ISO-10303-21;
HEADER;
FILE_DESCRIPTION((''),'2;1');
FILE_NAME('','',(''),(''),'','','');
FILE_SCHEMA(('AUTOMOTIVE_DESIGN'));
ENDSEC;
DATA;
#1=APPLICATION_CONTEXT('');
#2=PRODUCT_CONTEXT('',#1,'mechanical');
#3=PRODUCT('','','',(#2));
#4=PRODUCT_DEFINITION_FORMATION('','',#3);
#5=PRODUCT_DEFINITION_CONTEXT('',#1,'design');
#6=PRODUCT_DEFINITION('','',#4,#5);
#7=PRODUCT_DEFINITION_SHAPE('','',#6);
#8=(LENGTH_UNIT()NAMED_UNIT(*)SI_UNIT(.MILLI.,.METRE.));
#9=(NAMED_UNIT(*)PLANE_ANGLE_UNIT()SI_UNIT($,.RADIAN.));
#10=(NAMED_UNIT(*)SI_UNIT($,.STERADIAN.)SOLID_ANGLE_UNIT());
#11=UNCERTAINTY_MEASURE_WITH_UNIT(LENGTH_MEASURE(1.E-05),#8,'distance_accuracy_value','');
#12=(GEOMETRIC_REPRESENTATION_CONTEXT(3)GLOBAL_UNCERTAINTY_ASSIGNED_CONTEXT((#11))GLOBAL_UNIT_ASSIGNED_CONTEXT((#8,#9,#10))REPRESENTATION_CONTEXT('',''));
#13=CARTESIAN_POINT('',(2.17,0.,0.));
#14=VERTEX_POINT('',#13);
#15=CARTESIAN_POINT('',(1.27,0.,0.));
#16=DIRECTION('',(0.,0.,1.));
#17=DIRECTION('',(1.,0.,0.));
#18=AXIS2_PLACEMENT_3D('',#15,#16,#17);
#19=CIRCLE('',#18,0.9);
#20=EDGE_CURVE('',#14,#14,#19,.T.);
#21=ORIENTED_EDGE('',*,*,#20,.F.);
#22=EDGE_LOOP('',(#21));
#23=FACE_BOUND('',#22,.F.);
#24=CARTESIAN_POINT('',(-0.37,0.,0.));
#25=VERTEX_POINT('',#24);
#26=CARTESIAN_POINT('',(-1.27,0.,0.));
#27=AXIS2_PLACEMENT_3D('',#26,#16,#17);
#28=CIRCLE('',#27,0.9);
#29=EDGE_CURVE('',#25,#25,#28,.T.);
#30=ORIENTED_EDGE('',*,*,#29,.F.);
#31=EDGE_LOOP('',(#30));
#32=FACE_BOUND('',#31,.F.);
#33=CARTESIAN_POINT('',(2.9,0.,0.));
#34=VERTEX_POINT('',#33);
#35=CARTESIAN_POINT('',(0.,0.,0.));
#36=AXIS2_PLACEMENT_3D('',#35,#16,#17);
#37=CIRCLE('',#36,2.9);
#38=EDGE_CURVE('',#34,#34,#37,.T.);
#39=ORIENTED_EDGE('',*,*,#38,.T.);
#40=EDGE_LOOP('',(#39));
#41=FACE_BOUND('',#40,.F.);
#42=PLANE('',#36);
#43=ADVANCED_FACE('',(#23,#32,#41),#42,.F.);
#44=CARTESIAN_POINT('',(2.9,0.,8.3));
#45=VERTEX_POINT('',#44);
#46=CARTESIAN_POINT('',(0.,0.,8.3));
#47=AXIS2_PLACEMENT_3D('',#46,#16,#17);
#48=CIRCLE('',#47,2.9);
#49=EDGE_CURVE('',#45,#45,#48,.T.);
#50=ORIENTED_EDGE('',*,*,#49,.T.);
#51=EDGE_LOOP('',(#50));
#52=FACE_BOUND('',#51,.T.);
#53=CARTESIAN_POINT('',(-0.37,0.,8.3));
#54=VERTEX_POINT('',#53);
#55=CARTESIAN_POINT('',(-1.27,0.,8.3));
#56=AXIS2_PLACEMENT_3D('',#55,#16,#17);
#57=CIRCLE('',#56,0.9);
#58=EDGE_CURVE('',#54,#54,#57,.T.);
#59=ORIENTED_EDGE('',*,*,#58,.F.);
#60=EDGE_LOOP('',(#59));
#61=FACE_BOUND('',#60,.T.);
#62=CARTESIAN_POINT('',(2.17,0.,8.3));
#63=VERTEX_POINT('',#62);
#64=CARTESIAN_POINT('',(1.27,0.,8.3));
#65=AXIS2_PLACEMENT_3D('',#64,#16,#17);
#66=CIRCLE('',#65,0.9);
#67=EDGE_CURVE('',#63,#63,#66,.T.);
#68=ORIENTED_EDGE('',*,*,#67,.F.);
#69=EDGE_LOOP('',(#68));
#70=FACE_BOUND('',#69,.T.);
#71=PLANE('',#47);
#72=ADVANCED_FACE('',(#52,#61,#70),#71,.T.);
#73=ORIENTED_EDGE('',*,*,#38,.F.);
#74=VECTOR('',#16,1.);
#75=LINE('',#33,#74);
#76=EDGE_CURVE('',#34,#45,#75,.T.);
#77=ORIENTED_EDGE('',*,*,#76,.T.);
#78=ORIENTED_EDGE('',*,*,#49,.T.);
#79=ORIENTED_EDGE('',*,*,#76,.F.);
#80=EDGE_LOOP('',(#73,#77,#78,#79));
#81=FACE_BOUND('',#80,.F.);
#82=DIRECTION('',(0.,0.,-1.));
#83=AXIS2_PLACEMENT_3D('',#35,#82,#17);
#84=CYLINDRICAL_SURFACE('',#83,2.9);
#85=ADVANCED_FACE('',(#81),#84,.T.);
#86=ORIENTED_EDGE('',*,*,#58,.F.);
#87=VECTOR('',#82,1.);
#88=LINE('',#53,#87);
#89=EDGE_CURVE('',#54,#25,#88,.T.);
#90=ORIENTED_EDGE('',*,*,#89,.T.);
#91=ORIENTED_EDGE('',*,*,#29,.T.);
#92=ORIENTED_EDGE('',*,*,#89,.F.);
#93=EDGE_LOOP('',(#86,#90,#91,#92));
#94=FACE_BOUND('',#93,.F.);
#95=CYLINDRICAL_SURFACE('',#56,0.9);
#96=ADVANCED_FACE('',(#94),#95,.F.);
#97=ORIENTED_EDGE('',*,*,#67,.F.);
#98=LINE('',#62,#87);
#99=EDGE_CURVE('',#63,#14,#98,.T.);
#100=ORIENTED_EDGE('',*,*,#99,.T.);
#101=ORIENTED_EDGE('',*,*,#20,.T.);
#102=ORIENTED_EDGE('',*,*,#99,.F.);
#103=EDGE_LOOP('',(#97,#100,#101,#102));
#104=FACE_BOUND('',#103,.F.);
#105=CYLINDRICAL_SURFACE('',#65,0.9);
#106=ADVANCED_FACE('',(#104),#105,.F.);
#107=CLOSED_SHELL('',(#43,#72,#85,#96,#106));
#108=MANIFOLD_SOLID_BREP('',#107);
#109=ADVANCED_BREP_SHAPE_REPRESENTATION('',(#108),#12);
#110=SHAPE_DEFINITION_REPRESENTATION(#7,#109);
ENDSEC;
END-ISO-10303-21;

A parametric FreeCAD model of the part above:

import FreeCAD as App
import Part
import Sketcher

V = App.Vector

doc = App.newDocument("Part")
body = doc.addObject("PartDesign::Body", "Body")

sketch1 = body.newObject("Sketcher::SketchObject", "Sketch")
sketch1.AttachmentSupport = (doc.getObject("XY_Plane"), [""])
sketch1.MapMode = "FlatFace"
sketch1.addGeometry(Part.Circle(V(0, 0, 0), V(0, 0, 1), 2.9), False)
sketch1.addConstraint(Sketcher.Constraint("Coincident", 0, 3, -1, 1))
sketch1.addConstraint(Sketcher.Constraint("Diameter", 0, 5.8))
pad1 = body.newObject("PartDesign::Pad", "Pad")
pad1.Profile = sketch1
pad1.Length = 8.3

sketch2 = body.newObject("Sketcher::SketchObject", "Sketch001")
sketch2.AttachmentSupport = (doc.getObject("XY_Plane"), [""])
sketch2.MapMode = "FlatFace"
sketch2.AttachmentOffset = App.Placement(V(0, 0, 8.3), App.Rotation())
sketch2.addGeometry(Part.Circle(V(-1.3, 0, 0), V(0, 0, 1), 0.9), False)
sketch2.addGeometry(Part.Circle(V(1.3, 0, 0), V(0, 0, 1), 0.9), False)
sketch2.addConstraint(Sketcher.Constraint("Equal", 0, 1))
sketch2.addConstraint(Sketcher.Constraint("Symmetric", 0, 3, 1, 3, -1, 1))
sketch2.addConstraint(Sketcher.Constraint("PointOnObject", 0, 3, -1))
sketch2.addConstraint(Sketcher.Constraint("Diameter", 0, 1.8))
sketch2.addConstraint(Sketcher.Constraint("DistanceX", 0, 3, -1, 1, 1.27))
pocket1 = body.newObject("PartDesign::Pocket", "Pocket")
pocket1.Profile = sketch2
pocket1.Length = 10

doc.recompute()
